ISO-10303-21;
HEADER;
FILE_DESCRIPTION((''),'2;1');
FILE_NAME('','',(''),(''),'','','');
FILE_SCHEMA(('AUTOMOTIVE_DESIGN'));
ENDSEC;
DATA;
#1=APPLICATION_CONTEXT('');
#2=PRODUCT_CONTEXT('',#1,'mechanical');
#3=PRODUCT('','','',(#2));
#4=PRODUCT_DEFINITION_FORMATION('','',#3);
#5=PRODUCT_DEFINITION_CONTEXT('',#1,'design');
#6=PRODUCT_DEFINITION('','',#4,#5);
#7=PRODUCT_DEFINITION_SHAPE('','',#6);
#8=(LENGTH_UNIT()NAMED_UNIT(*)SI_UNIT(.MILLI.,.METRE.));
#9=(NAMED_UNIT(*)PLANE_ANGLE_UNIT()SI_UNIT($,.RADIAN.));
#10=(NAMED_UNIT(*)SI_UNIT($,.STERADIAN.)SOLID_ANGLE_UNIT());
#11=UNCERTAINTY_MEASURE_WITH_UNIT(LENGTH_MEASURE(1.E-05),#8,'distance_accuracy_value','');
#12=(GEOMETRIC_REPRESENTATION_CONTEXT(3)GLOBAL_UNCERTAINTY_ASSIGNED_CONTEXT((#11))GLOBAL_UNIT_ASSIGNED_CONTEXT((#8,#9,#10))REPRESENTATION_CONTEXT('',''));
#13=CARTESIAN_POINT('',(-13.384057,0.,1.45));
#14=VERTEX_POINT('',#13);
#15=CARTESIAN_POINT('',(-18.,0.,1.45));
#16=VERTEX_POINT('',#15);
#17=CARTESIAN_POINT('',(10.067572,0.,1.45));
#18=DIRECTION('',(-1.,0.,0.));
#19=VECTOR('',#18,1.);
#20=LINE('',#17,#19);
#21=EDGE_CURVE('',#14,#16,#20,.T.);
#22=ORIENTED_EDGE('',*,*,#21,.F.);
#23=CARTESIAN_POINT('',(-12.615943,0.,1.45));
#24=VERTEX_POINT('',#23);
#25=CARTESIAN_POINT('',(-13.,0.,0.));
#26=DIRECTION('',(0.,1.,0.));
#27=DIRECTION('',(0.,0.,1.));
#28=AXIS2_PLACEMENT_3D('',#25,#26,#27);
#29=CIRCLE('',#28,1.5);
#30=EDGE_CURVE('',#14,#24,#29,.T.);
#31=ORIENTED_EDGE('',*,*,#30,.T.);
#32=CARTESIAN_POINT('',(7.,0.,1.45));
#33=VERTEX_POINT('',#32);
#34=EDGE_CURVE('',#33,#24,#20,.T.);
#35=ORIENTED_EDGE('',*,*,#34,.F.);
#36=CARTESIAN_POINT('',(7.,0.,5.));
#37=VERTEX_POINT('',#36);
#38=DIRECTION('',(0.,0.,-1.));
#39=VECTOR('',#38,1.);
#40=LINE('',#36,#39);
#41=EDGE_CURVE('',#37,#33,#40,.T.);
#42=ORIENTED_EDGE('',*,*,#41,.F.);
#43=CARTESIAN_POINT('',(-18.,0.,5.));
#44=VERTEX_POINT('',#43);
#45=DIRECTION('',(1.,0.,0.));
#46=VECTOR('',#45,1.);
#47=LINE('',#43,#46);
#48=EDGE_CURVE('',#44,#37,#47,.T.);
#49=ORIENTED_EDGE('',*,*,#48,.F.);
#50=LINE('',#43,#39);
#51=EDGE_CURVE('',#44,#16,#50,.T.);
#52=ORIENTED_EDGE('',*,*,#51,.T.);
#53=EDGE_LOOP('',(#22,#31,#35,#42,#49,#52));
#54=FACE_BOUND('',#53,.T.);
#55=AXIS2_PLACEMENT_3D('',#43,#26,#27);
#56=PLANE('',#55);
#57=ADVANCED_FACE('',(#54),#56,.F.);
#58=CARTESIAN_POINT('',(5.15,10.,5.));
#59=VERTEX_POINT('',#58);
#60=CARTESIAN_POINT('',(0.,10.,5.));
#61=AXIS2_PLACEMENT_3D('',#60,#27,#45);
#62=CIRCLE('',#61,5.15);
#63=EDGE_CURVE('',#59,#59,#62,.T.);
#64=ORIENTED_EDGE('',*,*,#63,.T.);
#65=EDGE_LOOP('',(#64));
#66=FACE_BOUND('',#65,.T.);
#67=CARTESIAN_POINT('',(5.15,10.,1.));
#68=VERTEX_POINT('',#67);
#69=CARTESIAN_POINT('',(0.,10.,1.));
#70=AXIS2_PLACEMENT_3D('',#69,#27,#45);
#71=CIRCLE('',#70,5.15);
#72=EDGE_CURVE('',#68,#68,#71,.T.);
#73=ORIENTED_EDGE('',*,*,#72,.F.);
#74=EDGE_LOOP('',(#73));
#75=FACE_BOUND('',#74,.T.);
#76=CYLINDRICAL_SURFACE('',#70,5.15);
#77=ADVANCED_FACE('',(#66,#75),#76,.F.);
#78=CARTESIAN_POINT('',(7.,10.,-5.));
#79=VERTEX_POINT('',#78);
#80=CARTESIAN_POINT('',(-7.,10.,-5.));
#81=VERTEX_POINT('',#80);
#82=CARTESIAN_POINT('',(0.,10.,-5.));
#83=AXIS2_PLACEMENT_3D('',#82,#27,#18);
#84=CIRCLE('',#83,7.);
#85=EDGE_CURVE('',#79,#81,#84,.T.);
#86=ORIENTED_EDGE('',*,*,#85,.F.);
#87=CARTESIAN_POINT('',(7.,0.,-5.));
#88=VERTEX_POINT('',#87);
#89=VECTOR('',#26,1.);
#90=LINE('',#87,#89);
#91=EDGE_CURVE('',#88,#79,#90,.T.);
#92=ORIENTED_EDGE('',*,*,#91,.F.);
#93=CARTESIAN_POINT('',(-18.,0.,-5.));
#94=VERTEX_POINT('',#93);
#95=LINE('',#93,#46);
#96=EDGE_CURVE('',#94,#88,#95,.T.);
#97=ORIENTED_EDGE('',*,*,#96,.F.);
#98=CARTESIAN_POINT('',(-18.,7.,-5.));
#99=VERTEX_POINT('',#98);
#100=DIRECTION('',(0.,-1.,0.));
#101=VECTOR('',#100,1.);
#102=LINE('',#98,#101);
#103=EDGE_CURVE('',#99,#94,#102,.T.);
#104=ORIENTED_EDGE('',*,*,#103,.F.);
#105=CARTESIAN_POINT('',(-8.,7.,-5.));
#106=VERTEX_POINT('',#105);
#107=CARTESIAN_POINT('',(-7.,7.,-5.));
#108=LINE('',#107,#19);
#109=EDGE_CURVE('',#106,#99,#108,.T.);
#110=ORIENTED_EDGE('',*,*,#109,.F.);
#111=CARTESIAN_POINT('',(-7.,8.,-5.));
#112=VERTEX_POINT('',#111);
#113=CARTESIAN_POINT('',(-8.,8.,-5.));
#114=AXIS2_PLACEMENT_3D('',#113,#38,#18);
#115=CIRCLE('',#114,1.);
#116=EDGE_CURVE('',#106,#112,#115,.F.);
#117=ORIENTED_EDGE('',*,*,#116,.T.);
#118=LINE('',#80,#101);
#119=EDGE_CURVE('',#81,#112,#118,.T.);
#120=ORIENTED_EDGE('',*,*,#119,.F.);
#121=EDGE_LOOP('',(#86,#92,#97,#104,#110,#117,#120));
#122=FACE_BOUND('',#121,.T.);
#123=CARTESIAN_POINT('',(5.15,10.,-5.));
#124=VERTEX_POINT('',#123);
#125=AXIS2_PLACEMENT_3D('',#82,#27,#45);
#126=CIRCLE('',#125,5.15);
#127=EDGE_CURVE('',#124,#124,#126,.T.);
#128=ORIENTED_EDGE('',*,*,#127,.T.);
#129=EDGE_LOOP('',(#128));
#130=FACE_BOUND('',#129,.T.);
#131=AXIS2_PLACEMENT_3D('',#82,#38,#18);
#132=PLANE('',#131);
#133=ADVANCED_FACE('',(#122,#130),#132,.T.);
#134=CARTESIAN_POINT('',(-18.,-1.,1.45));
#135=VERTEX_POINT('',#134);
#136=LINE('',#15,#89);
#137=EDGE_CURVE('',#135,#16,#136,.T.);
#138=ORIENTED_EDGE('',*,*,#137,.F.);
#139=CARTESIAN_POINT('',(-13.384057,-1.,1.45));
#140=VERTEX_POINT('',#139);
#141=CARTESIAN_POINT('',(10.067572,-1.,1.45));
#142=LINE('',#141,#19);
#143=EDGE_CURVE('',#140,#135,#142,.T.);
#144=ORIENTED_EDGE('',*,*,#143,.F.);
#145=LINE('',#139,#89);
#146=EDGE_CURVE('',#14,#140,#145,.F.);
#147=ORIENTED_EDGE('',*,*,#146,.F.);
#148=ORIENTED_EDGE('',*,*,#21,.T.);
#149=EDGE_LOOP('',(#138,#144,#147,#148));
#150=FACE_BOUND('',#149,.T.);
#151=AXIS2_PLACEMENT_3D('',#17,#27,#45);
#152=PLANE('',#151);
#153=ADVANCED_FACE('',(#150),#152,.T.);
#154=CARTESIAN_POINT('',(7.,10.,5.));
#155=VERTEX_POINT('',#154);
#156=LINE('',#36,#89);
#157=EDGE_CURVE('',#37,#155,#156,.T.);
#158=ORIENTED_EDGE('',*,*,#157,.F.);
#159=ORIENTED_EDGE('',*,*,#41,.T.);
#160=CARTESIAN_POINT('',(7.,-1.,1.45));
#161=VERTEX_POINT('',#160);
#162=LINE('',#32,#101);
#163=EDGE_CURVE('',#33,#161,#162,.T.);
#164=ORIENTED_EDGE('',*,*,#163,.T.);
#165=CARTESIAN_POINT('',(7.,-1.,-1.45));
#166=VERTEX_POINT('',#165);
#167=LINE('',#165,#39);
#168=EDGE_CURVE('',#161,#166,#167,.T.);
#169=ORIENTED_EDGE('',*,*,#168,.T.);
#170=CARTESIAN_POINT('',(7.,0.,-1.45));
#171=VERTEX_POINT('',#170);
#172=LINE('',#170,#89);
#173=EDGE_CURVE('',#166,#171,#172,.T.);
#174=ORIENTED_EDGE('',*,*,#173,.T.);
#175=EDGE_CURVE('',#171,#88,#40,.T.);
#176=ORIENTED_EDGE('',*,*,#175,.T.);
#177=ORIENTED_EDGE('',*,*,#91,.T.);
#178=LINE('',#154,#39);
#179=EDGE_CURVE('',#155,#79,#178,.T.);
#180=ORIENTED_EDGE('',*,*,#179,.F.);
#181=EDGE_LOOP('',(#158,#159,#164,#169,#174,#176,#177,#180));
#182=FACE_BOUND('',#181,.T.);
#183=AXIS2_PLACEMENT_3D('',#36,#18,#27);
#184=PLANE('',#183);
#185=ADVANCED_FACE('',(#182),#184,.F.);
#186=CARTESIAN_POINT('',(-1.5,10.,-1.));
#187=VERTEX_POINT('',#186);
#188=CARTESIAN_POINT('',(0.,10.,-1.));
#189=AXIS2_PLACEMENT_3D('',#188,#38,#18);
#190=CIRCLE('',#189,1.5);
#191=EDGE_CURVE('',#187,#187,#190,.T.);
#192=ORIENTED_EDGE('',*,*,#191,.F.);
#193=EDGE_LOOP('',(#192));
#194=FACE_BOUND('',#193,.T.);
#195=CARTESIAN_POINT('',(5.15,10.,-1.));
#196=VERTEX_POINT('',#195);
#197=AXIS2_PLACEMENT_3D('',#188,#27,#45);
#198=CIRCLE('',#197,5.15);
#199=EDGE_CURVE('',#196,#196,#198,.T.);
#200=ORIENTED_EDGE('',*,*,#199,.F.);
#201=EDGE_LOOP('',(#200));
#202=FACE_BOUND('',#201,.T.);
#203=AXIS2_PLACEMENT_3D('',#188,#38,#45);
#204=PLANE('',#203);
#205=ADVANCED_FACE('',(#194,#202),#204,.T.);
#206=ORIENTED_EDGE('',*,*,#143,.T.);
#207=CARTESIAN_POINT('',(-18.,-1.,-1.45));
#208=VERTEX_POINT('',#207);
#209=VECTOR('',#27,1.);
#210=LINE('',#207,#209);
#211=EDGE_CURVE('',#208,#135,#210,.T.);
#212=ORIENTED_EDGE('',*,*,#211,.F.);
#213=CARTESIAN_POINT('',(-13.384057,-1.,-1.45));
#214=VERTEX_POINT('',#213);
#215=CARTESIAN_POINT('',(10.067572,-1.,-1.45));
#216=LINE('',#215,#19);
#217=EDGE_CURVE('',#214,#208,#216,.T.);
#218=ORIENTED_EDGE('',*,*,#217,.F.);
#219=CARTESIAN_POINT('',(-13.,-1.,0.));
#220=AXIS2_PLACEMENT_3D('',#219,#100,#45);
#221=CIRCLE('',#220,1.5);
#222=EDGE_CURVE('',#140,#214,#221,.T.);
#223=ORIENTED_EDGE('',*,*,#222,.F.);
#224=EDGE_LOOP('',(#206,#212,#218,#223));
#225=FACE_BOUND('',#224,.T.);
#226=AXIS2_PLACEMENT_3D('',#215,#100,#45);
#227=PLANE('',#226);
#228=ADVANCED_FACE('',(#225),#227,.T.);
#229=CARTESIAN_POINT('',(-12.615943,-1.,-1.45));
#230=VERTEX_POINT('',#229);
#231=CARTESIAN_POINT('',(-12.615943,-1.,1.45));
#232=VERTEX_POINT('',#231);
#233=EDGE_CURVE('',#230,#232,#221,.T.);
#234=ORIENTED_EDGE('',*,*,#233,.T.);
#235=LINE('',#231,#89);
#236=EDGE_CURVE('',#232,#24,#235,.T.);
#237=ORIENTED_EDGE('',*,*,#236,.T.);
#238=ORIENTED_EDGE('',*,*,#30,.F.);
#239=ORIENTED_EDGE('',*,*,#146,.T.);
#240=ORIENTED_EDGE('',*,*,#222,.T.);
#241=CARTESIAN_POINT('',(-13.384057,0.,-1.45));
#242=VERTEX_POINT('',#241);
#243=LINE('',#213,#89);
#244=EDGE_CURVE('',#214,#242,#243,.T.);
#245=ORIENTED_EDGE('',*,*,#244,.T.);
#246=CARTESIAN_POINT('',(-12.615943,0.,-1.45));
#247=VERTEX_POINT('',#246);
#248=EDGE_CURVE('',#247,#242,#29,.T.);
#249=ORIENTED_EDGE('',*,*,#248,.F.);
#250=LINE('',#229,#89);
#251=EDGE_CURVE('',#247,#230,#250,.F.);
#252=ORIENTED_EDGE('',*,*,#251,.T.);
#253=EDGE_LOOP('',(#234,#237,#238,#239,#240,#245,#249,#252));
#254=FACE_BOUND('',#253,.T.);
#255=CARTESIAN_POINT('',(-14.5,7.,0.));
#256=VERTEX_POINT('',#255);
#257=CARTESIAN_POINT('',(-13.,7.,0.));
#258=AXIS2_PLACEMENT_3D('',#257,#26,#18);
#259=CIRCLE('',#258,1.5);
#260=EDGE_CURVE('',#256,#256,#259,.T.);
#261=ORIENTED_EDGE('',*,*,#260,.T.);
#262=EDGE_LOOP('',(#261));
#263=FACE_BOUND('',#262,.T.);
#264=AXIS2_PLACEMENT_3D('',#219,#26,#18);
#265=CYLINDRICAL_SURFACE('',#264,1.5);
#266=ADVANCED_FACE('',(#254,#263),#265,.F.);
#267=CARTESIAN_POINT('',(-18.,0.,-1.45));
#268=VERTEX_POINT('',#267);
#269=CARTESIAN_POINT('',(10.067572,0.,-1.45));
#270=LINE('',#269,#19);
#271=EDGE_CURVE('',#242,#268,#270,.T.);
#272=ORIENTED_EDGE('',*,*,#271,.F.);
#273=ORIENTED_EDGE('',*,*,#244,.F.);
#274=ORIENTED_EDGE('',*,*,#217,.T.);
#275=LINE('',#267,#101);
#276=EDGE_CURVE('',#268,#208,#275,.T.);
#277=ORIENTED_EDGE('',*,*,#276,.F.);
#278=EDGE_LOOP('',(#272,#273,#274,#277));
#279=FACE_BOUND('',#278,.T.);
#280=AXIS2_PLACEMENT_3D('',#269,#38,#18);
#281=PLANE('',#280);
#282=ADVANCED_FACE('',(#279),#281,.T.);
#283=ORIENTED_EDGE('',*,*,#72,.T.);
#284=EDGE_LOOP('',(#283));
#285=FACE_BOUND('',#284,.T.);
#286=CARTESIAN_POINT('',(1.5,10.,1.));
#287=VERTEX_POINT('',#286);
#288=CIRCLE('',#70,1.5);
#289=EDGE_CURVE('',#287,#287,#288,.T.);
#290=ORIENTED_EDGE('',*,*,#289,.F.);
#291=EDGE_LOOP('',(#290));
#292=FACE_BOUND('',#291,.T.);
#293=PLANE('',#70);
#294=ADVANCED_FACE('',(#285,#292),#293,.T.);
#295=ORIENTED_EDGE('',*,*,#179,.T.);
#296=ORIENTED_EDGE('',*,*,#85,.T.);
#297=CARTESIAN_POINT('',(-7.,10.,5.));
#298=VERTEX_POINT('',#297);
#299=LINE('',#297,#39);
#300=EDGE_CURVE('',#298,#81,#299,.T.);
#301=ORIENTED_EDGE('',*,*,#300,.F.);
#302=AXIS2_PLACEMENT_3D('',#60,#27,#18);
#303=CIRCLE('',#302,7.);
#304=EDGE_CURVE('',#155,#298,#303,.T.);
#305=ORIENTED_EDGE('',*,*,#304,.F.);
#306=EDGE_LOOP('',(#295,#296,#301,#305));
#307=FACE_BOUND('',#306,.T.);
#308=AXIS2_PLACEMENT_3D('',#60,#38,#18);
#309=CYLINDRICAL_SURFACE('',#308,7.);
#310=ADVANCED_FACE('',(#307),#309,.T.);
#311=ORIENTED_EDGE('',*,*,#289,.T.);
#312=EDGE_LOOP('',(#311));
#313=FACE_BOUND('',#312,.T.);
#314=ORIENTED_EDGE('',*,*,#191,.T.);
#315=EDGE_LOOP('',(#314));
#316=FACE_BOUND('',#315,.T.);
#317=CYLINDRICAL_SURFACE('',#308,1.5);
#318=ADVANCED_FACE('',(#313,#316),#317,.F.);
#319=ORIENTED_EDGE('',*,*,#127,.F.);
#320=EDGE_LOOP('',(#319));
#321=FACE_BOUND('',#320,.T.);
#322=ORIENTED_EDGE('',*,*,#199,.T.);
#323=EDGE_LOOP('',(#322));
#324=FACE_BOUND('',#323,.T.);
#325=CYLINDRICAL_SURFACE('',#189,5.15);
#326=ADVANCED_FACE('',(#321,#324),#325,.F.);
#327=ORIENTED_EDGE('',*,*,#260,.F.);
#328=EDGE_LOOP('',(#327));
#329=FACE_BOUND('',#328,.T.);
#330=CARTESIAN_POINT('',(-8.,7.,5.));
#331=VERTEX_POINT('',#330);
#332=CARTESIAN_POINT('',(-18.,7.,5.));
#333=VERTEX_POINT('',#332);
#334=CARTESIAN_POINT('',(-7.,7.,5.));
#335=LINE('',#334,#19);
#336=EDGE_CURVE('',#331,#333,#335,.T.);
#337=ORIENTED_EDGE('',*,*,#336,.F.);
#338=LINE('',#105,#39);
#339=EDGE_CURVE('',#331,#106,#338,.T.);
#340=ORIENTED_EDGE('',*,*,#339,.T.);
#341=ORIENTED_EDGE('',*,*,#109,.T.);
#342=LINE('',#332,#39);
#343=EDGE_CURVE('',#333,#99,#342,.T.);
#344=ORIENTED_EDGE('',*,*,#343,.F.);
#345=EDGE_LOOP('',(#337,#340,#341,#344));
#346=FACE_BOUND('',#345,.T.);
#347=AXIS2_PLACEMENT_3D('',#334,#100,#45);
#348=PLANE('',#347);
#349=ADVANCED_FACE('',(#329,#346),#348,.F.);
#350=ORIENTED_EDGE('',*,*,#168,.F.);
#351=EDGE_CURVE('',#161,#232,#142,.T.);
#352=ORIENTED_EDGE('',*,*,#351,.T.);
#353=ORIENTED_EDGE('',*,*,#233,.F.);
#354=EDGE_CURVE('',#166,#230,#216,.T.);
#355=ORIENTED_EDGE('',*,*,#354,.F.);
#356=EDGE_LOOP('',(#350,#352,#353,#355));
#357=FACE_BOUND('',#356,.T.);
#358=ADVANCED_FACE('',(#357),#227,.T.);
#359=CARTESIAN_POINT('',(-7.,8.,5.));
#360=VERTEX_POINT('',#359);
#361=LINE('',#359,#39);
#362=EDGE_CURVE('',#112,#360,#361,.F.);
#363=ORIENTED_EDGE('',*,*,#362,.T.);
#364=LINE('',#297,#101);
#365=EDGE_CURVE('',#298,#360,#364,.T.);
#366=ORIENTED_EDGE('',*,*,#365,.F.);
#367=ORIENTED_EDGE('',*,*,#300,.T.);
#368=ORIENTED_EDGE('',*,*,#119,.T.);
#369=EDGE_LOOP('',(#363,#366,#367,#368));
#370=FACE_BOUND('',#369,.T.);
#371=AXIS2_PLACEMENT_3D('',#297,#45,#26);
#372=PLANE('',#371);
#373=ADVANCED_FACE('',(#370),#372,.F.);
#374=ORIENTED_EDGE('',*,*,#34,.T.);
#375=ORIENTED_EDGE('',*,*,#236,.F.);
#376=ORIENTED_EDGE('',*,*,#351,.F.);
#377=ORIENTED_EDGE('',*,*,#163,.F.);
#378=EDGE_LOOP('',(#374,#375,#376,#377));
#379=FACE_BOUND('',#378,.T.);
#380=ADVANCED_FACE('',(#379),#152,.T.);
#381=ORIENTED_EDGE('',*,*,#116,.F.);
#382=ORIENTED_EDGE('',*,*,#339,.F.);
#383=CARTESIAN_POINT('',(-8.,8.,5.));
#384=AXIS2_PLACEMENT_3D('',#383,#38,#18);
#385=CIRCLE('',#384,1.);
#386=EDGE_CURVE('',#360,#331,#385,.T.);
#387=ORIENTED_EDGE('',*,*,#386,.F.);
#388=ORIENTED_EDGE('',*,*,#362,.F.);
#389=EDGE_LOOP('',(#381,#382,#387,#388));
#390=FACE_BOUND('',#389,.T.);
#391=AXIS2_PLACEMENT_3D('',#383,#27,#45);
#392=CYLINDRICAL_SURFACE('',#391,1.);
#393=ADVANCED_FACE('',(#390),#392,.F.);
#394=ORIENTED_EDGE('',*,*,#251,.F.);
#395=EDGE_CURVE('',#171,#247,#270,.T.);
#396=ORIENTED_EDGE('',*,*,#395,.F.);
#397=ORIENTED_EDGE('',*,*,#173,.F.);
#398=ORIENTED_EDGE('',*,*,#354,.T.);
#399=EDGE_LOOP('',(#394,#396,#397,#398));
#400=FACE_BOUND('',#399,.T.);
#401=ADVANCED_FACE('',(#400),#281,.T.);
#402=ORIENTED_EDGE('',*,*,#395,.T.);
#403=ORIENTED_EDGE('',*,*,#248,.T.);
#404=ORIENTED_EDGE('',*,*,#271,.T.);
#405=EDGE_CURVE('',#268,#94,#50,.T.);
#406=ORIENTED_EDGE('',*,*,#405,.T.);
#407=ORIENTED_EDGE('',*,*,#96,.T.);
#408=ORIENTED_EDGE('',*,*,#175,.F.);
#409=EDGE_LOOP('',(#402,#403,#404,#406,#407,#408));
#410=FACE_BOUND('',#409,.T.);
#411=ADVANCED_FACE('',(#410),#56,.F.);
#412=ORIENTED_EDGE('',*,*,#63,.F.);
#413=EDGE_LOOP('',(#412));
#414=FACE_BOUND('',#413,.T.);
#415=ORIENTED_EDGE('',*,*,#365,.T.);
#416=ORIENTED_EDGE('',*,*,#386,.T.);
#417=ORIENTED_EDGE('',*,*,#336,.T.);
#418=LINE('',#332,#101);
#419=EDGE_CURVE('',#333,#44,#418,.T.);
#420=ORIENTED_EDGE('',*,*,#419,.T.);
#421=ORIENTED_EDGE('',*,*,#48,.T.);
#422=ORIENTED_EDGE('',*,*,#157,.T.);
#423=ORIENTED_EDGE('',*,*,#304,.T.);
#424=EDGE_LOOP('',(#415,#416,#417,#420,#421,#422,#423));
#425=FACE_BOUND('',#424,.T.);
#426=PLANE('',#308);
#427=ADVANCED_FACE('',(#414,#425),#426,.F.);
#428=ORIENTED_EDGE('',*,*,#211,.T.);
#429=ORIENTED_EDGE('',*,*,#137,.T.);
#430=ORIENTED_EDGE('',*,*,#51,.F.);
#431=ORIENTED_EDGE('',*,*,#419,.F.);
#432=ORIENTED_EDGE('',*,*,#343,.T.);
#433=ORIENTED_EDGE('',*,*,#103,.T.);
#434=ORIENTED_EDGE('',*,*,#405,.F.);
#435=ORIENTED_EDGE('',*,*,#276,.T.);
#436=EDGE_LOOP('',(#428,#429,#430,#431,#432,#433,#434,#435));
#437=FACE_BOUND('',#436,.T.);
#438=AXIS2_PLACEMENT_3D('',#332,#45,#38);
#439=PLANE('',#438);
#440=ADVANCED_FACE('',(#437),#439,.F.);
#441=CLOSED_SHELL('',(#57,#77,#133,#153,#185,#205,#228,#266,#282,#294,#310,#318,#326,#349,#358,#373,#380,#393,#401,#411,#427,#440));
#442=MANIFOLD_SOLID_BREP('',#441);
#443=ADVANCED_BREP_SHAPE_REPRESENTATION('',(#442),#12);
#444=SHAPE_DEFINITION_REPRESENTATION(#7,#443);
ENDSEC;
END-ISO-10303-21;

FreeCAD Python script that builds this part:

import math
import FreeCAD as App
import Part
import Sketcher
from FreeCAD import Vector
Q = App.Units.Quantity


def edges_at(feature, points):
    """Names of the edges that pass closest to the given points."""
    edges = feature.Shape.Edges
    near = lambda p: min(range(len(edges)), key=lambda i: edges[i].distToShape(Part.Vertex(*p))[0])
    return sorted({f"Edge{near(p) + 1}" for p in points})

doc = App.newDocument("Part")
body = doc.addObject("PartDesign::Body", "Body")

# Sketch on XY plane
sketch1 = doc.addObject("Sketcher::SketchObject", "Sketch")
body.addObject(sketch1)
sketch1.AttachmentSupport = (doc.XY_Plane, [""])
sketch1.MapMode = "FlatFace"
sketch1.addGeometry(Part.LineSegment(Vector(-18, 0, 0), Vector(7, 0, 0)), False)
sketch1.addGeometry(Part.LineSegment(Vector(7, 0, 0), Vector(7, 10, 0)), False)
sketch1.addGeometry(Part.ArcOfCircle(Part.Circle(Vector(0, 10, 0), Vector(0, 0, 1), 7), math.radians(0), math.radians(180)), False)
sketch1.addGeometry(Part.LineSegment(Vector(-7, 10, 0), Vector(-7, 7, 0)), False)
sketch1.addGeometry(Part.LineSegment(Vector(-7, 7, 0), Vector(-18, 7, 0)), False)
sketch1.addGeometry(Part.LineSegment(Vector(-18, 7, 0), Vector(-18, 0, 0)), False)
sketch1.addGeometry(Part.Circle(Vector(0, 10, 0), Vector(0, 0, 1), 1.5), False)
sketch1.addConstraint(Sketcher.Constraint("Coincident", 0, 2, 1, 1))
sketch1.addConstraint(Sketcher.Constraint("Tangent", 1, 2, 2, 1))
sketch1.addConstraint(Sketcher.Constraint("Tangent", 2, 2, 3, 1))
sketch1.addConstraint(Sketcher.Constraint("Coincident", 3, 2, 4, 1))
sketch1.addConstraint(Sketcher.Constraint("Coincident", 4, 2, 5, 1))
sketch1.addConstraint(Sketcher.Constraint("Coincident", 5, 2, 0, 1))
sketch1.addConstraint(Sketcher.Constraint("Horizontal", 0))
sketch1.addConstraint(Sketcher.Constraint("Vertical", 1))
sketch1.addConstraint(Sketcher.Constraint("Vertical", 3))
sketch1.addConstraint(Sketcher.Constraint("Horizontal", 4))
sketch1.addConstraint(Sketcher.Constraint("Vertical", 5))
sketch1.addConstraint(Sketcher.Constraint("Coincident", 6, 3, 2, 3))
sketch1.addConstraint(Sketcher.Constraint("PointOnObject", 2, 3, -2))
sketch1.addConstraint(Sketcher.Constraint("PointOnObject", 0, 2, -1))
sketch1.addConstraint(Sketcher.Constraint("Diameter", 6, Q("3 mm")))
sketch1.addConstraint(Sketcher.Constraint("Radius", 2, Q("7 mm")))
sketch1.addConstraint(Sketcher.Constraint("DistanceX", 0, 1, 0, 2, Q("25 mm")))
sketch1.addConstraint(Sketcher.Constraint("DistanceY", 1, 1, 1, 2, Q("10 mm")))
sketch1.addConstraint(Sketcher.Constraint("DistanceY", 3, 2, 3, 1, Q("3 mm")))
pad1 = doc.addObject("PartDesign::Pad", "Pad")
body.addObject(pad1)
pad1.Profile = sketch1
pad1.Length = 10
pad1.Midplane = True

# Sketch on YZ plane
sketch2 = doc.addObject("Sketcher::SketchObject", "Sketch001")
body.addObject(sketch2)
sketch2.AttachmentSupport = (doc.YZ_Plane, [""])
sketch2.MapMode = "FlatFace"
sketch2.AttachmentOffset = App.Placement(Vector(0, 0, -18), App.Rotation())
sketch2.addGeometry(Part.LineSegment(Vector(0, -1.45, 0), Vector(-1, -1.45, 0)), False)
sketch2.addGeometry(Part.LineSegment(Vector(-1, -1.45, 0), Vector(-1, 1.45, 0)), False)
sketch2.addGeometry(Part.LineSegment(Vector(-1, 1.45, 0), Vector(0, 1.45, 0)), False)
sketch2.addGeometry(Part.LineSegment(Vector(0, 1.45, 0), Vector(0, -1.45, 0)), False)
sketch2.addConstraint(Sketcher.Constraint("Coincident", 0, 2, 1, 1))
sketch2.addConstraint(Sketcher.Constraint("Coincident", 1, 2, 2, 1))
sketch2.addConstraint(Sketcher.Constraint("Coincident", 2, 2, 3, 1))
sketch2.addConstraint(Sketcher.Constraint("Coincident", 3, 2, 0, 1))
sketch2.addConstraint(Sketcher.Constraint("Horizontal", 0))
sketch2.addConstraint(Sketcher.Constraint("Vertical", 1))
sketch2.addConstraint(Sketcher.Constraint("Horizontal", 2))
sketch2.addConstraint(Sketcher.Constraint("Vertical", 3))
sketch2.addConstraint(Sketcher.Constraint("Symmetric", 2, 2, 3, 2, -1, 1))
sketch2.addConstraint(Sketcher.Constraint("DistanceX", 0, 2, 0, 1, Q("1 mm")))
sketch2.addConstraint(Sketcher.Constraint("DistanceY", 1, 1, 1, 2, Q("2.9 mm")))
pad2 = doc.addObject("PartDesign::Pad", "Pad001")
body.addObject(pad2)
pad2.Profile = sketch2
pad2.Length = 25

# Sketch on XZ plane
sketch3 = doc.addObject("Sketcher::SketchObject", "Sketch002")
body.addObject(sketch3)
sketch3.AttachmentSupport = (doc.XZ_Plane, [""])
sketch3.MapMode = "FlatFace"
sketch3.AttachmentOffset = App.Placement(Vector(0, 0, -7), App.Rotation())
sketch3.addGeometry(Part.Circle(Vector(-13, 0, 0), Vector(0, 0, 1), 1.5), False)
sketch3.addConstraint(Sketcher.Constraint("PointOnObject", 0, 3, -1))
sketch3.addConstraint(Sketcher.Constraint("Diameter", 0, Q("3 mm")))
sketch3.addConstraint(Sketcher.Constraint("DistanceX", 0, 3, -1, 1, Q("13 mm")))
pocket1 = doc.addObject("PartDesign::Pocket", "Pocket")
body.addObject(pocket1)
pocket1.Profile = sketch3
pocket1.Type = "ThroughAll"
pocket1.Reversed = True

# Sketch on XY plane
sketch4 = doc.addObject("Sketcher::SketchObject", "Sketch003")
body.addObject(sketch4)
sketch4.AttachmentSupport = (doc.XY_Plane, [""])
sketch4.MapMode = "FlatFace"
sketch4.AttachmentOffset = App.Placement(Vector(0, 0, 5), App.Rotation())
sketch4.addGeometry(Part.Circle(Vector(0, 10, 0), Vector(0, 0, 1), 5.15), False)
sketch4.addConstraint(Sketcher.Constraint("PointOnObject", 0, 3, -2))
sketch4.addConstraint(Sketcher.Constraint("Diameter", 0, Q("10.3 mm")))
sketch4.addConstraint(Sketcher.Constraint("DistanceY", -1, 1, 0, 3, Q("10 mm")))
pocket2 = doc.addObject("PartDesign::Pocket", "Pocket001")
body.addObject(pocket2)
pocket2.Profile = sketch4
pocket2.Length = 4
doc.recompute()

mirrored = doc.addObject("PartDesign::Mirrored", "Mirrored")
body.addObject(mirrored)
mirrored.Originals = [pocket2]
mirrored.MirrorPlane = (doc.XY_Plane, [""])
body.Tip = mirrored
doc.recompute()

fillet = doc.addObject("PartDesign::Fillet", "Fillet")
body.addObject(fillet)
fillet.Base = (mirrored, edges_at(mirrored, [(-7, 7, 0)]))
fillet.Radius = 1

doc.recompute()
